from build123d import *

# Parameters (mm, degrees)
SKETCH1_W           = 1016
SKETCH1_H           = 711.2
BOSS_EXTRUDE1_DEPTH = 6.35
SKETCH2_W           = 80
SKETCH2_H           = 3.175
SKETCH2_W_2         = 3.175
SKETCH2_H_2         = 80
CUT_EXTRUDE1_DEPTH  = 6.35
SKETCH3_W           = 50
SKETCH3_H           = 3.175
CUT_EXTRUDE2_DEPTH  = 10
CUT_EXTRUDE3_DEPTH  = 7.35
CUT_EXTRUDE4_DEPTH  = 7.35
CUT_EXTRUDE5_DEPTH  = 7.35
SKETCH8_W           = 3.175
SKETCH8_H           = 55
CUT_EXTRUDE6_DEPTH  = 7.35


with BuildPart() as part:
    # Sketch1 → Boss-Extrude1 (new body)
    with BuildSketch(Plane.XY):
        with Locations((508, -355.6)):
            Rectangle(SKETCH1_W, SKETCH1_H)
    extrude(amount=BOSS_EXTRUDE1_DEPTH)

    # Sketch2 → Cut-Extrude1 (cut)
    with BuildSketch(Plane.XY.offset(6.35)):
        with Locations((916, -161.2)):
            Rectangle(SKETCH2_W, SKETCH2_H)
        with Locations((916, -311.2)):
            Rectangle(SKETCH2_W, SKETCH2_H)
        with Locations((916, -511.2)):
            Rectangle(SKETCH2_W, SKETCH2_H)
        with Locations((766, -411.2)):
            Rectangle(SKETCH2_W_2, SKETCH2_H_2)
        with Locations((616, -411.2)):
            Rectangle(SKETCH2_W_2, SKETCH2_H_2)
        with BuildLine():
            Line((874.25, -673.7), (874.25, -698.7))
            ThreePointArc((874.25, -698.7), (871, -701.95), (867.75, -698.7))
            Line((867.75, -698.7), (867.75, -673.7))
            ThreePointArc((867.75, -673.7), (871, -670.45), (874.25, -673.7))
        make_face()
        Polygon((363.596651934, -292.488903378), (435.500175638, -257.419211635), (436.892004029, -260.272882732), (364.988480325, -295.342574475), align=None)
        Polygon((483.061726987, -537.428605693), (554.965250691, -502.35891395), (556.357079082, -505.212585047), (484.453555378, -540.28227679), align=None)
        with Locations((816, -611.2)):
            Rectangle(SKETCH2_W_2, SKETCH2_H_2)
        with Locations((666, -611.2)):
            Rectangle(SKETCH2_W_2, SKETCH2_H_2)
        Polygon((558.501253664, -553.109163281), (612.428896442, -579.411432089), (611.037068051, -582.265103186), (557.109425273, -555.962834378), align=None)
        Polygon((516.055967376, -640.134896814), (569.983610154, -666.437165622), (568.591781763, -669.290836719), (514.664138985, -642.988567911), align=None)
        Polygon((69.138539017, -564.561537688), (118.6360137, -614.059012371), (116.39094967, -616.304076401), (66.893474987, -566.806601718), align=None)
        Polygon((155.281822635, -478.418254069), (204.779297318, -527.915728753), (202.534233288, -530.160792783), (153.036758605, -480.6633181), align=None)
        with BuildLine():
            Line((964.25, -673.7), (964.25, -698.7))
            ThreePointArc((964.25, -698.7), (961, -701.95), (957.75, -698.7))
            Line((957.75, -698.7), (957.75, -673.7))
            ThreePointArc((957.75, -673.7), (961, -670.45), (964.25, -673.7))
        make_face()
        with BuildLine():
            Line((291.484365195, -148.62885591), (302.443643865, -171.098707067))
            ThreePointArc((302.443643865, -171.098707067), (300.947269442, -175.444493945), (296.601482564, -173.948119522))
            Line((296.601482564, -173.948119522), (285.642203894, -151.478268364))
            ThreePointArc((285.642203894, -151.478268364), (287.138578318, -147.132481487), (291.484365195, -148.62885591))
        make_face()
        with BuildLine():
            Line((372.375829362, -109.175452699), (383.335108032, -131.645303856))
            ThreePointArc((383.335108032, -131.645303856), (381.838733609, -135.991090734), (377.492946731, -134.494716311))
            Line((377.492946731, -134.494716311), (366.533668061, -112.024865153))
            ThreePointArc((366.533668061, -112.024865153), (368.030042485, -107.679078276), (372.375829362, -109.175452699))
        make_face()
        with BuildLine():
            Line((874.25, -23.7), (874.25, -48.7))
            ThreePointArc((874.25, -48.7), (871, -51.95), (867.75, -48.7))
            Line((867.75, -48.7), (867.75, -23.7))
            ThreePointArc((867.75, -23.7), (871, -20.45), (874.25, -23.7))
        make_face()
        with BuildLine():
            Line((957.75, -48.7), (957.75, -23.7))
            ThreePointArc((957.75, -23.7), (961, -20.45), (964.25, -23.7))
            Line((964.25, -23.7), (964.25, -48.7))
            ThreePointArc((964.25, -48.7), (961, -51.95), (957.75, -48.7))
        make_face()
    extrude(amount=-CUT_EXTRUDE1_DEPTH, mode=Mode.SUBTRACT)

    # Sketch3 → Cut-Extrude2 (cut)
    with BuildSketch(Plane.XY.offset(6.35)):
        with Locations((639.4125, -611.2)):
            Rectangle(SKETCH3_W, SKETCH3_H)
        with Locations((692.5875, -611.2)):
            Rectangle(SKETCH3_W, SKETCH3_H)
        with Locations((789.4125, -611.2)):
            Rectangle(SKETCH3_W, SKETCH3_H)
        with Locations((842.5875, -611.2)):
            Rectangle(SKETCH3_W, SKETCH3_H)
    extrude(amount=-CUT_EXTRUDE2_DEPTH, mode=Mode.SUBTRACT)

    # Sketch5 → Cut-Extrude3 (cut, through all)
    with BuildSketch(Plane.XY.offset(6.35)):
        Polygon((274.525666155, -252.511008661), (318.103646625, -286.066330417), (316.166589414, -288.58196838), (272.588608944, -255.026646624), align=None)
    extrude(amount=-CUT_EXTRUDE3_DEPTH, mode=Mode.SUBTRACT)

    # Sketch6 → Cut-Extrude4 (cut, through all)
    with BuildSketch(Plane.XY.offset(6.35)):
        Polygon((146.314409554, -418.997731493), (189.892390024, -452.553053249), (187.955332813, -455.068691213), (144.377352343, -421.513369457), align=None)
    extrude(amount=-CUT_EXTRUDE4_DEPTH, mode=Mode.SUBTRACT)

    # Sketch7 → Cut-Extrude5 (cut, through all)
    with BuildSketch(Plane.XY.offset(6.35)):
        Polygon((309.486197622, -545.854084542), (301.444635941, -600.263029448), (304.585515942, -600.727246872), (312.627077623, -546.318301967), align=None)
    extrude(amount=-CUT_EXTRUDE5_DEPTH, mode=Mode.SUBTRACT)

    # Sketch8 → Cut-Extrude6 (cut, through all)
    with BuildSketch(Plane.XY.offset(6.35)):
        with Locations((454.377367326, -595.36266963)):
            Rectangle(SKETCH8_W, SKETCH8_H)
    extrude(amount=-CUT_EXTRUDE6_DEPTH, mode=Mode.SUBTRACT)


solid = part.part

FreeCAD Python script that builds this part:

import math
import FreeCAD as App
import Part
import Sketcher
Q = App.Units.Quantity

doc = App.newDocument("Part")
body = doc.addObject("PartDesign::Body", "Body")

# Sketch on XY plane
sketch1 = body.newObject("Sketcher::SketchObject", "Sketch")
sketch1.AttachmentSupport = (doc.getObject("XY_Plane"), [""])
sketch1.MapMode = "FlatFace"
sketch1.addGeometry([
    Part.LineSegment(App.Vector(0, 0, 0), App.Vector(0, -711.2, 0)),
    Part.LineSegment(App.Vector(0, -711.2, 0), App.Vector(1016, -711.2, 0)),
    Part.LineSegment(App.Vector(1016, -711.2, 0), App.Vector(1016, 0, 0)),
    Part.LineSegment(App.Vector(1016, 0, 0), App.Vector(0, 0, 0)),
], False)
sketch1.addConstraint([
    Sketcher.Constraint("Coincident", 0, 2, 1, 1),
    Sketcher.Constraint("Coincident", 1, 2, 2, 1),
    Sketcher.Constraint("Coincident", 2, 2, 3, 1),
    Sketcher.Constraint("Coincident", 3, 2, 0, 1),
    Sketcher.Constraint("Vertical", 0),
    Sketcher.Constraint("Horizontal", 1),
    Sketcher.Constraint("Vertical", 2),
    Sketcher.Constraint("Horizontal", 3),
    Sketcher.Constraint("Coincident", 3, 2, -1, 1),
    Sketcher.Constraint("DistanceX", 1, 1, 1, 2, 1016.0),
    Sketcher.Constraint("DistanceY", 0, 2, 0, 1, 711.2),
])
pad1 = body.newObject("PartDesign::Pad", "Pad")
pad1.Profile = sketch1
pad1.Length = 6.35

# Sketch on XY plane
sketch2 = body.newObject("Sketcher::SketchObject", "Sketch001")
sketch2.AttachmentSupport = (doc.getObject("XY_Plane"), [""])
sketch2.MapMode = "FlatFace"
sketch2.AttachmentOffset = App.Placement(App.Vector(0, 0, 6.35), App.Rotation())
sketch2.addGeometry([
    Part.LineSegment(App.Vector(876, -159.6125, 0), App.Vector(876, -162.7875, 0)),  # 0
    Part.LineSegment(App.Vector(876, -162.7875, 0), App.Vector(956, -162.7875, 0)),  # 1
    Part.LineSegment(App.Vector(956, -162.7875, 0), App.Vector(956, -159.6125, 0)),  # 2
    Part.LineSegment(App.Vector(956, -159.6125, 0), App.Vector(876, -159.6125, 0)),  # 3
    Part.LineSegment(App.Vector(876, -309.6125, 0), App.Vector(876, -312.7875, 0)),  # 4
    Part.LineSegment(App.Vector(876, -312.7875, 0), App.Vector(956, -312.7875, 0)),  # 5
    Part.LineSegment(App.Vector(956, -312.7875, 0), App.Vector(956, -309.6125, 0)),  # 6
    Part.LineSegment(App.Vector(956, -309.6125, 0), App.Vector(876, -309.6125, 0)),  # 7
    Part.LineSegment(App.Vector(876, -509.6125, 0), App.Vector(876, -512.7875, 0)),  # 8
    Part.LineSegment(App.Vector(876, -512.7875, 0), App.Vector(956, -512.7875, 0)),  # 9
    Part.LineSegment(App.Vector(956, -512.7875, 0), App.Vector(956, -509.6125, 0)),  # 10
    Part.LineSegment(App.Vector(956, -509.6125, 0), App.Vector(876, -509.6125, 0)),  # 11
    Part.LineSegment(App.Vector(764.4125, -371.2, 0), App.Vector(764.4125, -451.2, 0)),  # 12
    Part.LineSegment(App.Vector(764.4125, -451.2, 0), App.Vector(767.5875, -451.2, 0)),  # 13
    Part.LineSegment(App.Vector(767.5875, -451.2, 0), App.Vector(767.5875, -371.2, 0)),  # 14
    Part.LineSegment(App.Vector(767.5875, -371.2, 0), App.Vector(764.4125, -371.2, 0)),  # 15
    Part.LineSegment(App.Vector(614.4125, -371.2, 0), App.Vector(614.4125, -451.2, 0)),  # 16
    Part.LineSegment(App.Vector(614.4125, -451.2, 0), App.Vector(617.5875, -451.2, 0)),  # 17
    Part.LineSegment(App.Vector(617.5875, -451.2, 0), App.Vector(617.5875, -371.2, 0)),  # 18
    Part.LineSegment(App.Vector(617.5875, -371.2, 0), App.Vector(614.4125, -371.2, 0)),  # 19
    Part.LineSegment(App.Vector(874.25, -698.7, 0), App.Vector(874.25, -673.7, 0)),  # 20
    Part.ArcOfCircle(Part.Circle(App.Vector(871, -673.7, 0), App.Vector(0, 0, 1), 3.25), math.radians(0), math.radians(180)),  # 21
    Part.LineSegment(App.Vector(867.75, -673.7, 0), App.Vector(867.75, -698.7, 0)),  # 22
    Part.ArcOfCircle(Part.Circle(App.Vector(871, -698.7, 0), App.Vector(0, 0, 1), 3.25), math.radians(180), math.radians(360)),  # 23
    Part.LineSegment(App.Vector(435.500176, -257.419212, 0), App.Vector(363.596652, -292.488903, 0)),  # 24
    Part.LineSegment(App.Vector(363.596652, -292.488903, 0), App.Vector(364.98848, -295.342574, 0)),  # 25
    Part.LineSegment(App.Vector(364.98848, -295.342574, 0), App.Vector(436.892004, -260.272883, 0)),  # 26
    Part.LineSegment(App.Vector(436.892004, -260.272883, 0), App.Vector(435.500176, -257.419212, 0)),  # 27
    Part.LineSegment(App.Vector(554.965251, -502.358914, 0), App.Vector(483.061727, -537.428606, 0)),  # 28
    Part.LineSegment(App.Vector(483.061727, -537.428606, 0), App.Vector(484.453555, -540.282277, 0)),  # 29
    Part.LineSegment(App.Vector(484.453555, -540.282277, 0), App.Vector(556.357079, -505.212585, 0)),  # 30
    Part.LineSegment(App.Vector(556.357079, -505.212585, 0), App.Vector(554.965251, -502.358914, 0)),  # 31
    Part.LineSegment(App.Vector(814.4125, -571.2, 0), App.Vector(814.4125, -651.2, 0)),  # 32
    Part.LineSegment(App.Vector(814.4125, -651.2, 0), App.Vector(817.5875, -651.2, 0)),  # 33
    Part.LineSegment(App.Vector(817.5875, -651.2, 0), App.Vector(817.5875, -571.2, 0)),  # 34
    Part.LineSegment(App.Vector(817.5875, -571.2, 0), App.Vector(814.4125, -571.2, 0)),  # 35
    Part.LineSegment(App.Vector(664.4125, -571.2, 0), App.Vector(664.4125, -651.2, 0)),  # 36
    Part.LineSegment(App.Vector(664.4125, -651.2, 0), App.Vector(667.5875, -651.2, 0)),  # 37
    Part.LineSegment(App.Vector(667.5875, -651.2, 0), App.Vector(667.5875, -571.2, 0)),  # 38
    Part.LineSegment(App.Vector(667.5875, -571.2, 0), App.Vector(664.4125, -571.2, 0)),  # 39
    Part.LineSegment(App.Vector(612.428896, -579.411432, 0), App.Vector(558.501254, -553.109163, 0)),  # 40
    Part.LineSegment(App.Vector(558.501254, -553.109163, 0), App.Vector(557.109425, -555.962834, 0)),  # 41
    Part.LineSegment(App.Vector(557.109425, -555.962834, 0), App.Vector(611.037068, -582.265103, 0)),  # 42
    Part.LineSegment(App.Vector(611.037068, -582.265103, 0), App.Vector(612.428896, -579.411432, 0)),  # 43
    Part.LineSegment(App.Vector(569.98361, -666.437166, 0), App.Vector(516.055967, -640.134897, 0)),  # 44
    Part.LineSegment(App.Vector(516.055967, -640.134897, 0), App.Vector(514.664139, -642.988568, 0)),  # 45
    Part.LineSegment(App.Vector(514.664139, -642.988568, 0), App.Vector(568.591782, -669.290837, 0)),  # 46
    Part.LineSegment(App.Vector(568.591782, -669.290837, 0), App.Vector(569.98361, -666.437166, 0)),  # 47
    Part.LineSegment(App.Vector(118.636014, -614.059012, 0), App.Vector(69.138539, -564.561538, 0)),  # 48
    Part.LineSegment(App.Vector(69.138539, -564.561538, 0), App.Vector(66.893475, -566.806602, 0)),  # 49
    Part.LineSegment(App.Vector(66.893475, -566.806602, 0), App.Vector(116.39095, -616.304076, 0)),  # 50
    Part.LineSegment(App.Vector(116.39095, -616.304076, 0), App.Vector(118.636014, -614.059012, 0)),  # 51
    Part.LineSegment(App.Vector(204.779297, -527.915729, 0), App.Vector(155.281823, -478.418254, 0)),  # 52
    Part.LineSegment(App.Vector(155.281823, -478.418254, 0), App.Vector(153.036759, -480.663318, 0)),  # 53
    Part.LineSegment(App.Vector(153.036759, -480.663318, 0), App.Vector(202.534233, -530.160793, 0)),  # 54
    Part.LineSegment(App.Vector(202.534233, -530.160793, 0), App.Vector(204.779297, -527.915729, 0)),  # 55
    Part.LineSegment(App.Vector(964.25, -698.7, 0), App.Vector(964.25, -673.7, 0)),  # 56
    Part.ArcOfCircle(Part.Circle(App.Vector(961, -673.7, 0), App.Vector(0, 0, 1), 3.25), math.radians(0), math.radians(180)),  # 57
    Part.LineSegment(App.Vector(957.75, -673.7, 0), App.Vector(957.75, -698.7, 0)),  # 58
    Part.ArcOfCircle(Part.Circle(App.Vector(961, -698.7, 0), App.Vector(0, 0, 1), 3.25), math.radians(180), math.radians(360)),  # 59
    Part.LineSegment(App.Vector(302.443644, -171.098707, 0), App.Vector(291.484365, -148.628856, 0)),  # 60
    Part.ArcOfCircle(Part.Circle(App.Vector(288.563285, -150.053562, 0), App.Vector(0, 0, 1), 3.25), math.radians(26), math.radians(206)),  # 61
    Part.LineSegment(App.Vector(285.642204, -151.478268, 0), App.Vector(296.601483, -173.94812, 0)),  # 62
    Part.ArcOfCircle(Part.Circle(App.Vector(299.522563, -172.523413, 0), App.Vector(0, 0, 1), 3.25), math.radians(-154), math.radians(26)),  # 63
    Part.LineSegment(App.Vector(383.335108, -131.645304, 0), App.Vector(372.375829, -109.175453, 0)),  # 64
    Part.ArcOfCircle(Part.Circle(App.Vector(369.454749, -110.600159, 0), App.Vector(0, 0, 1), 3.25), math.radians(26), math.radians(206)),  # 65
    Part.LineSegment(App.Vector(366.533668, -112.024865, 0), App.Vector(377.492947, -134.494716, 0)),  # 66
    Part.ArcOfCircle(Part.Circle(App.Vector(380.414027, -133.07001, 0), App.Vector(0, 0, 1), 3.25), math.radians(-154), math.radians(26)),  # 67
    Part.LineSegment(App.Vector(874.25, -48.7, 0), App.Vector(874.25, -23.7, 0)),  # 68
    Part.ArcOfCircle(Part.Circle(App.Vector(871, -23.7, 0), App.Vector(0, 0, 1), 3.25), math.radians(0), math.radians(180)),  # 69
    Part.LineSegment(App.Vector(867.75, -23.7, 0), App.Vector(867.75, -48.7, 0)),  # 70
    Part.ArcOfCircle(Part.Circle(App.Vector(871, -48.7, 0), App.Vector(0, 0, 1), 3.25), math.radians(180), math.radians(360)),  # 71
    Part.LineSegment(App.Vector(957.75, -23.7, 0), App.Vector(957.75, -48.7, 0)),  # 72
    Part.ArcOfCircle(Part.Circle(App.Vector(961, -48.7, 0), App.Vector(0, 0, 1), 3.25), math.radians(180), math.radians(360)),  # 73
    Part.LineSegment(App.Vector(964.25, -48.7, 0), App.Vector(964.25, -23.7, 0)),  # 74
    Part.ArcOfCircle(Part.Circle(App.Vector(961, -23.7, 0), App.Vector(0, 0, 1), 3.25), math.radians(0), math.radians(180)),  # 75
], False)
sketch2.addConstraint([
    Sketcher.Constraint("Coincident", 0, 2, 1, 1),
    Sketcher.Constraint("Coincident", 1, 2, 2, 1),
    Sketcher.Constraint("Coincident", 2, 2, 3, 1),
    Sketcher.Constraint("Coincident", 3, 2, 0, 1),
    Sketcher.Constraint("Coincident", 4, 2, 5, 1),
    Sketcher.Constraint("Coincident", 5, 2, 6, 1),
    Sketcher.Constraint("Coincident", 6, 2, 7, 1),
    Sketcher.Constraint("Coincident", 7, 2, 4, 1),
    Sketcher.Constraint("Coincident", 8, 2, 9, 1),
    Sketcher.Constraint("Coincident", 9, 2, 10, 1),
    Sketcher.Constraint("Coincident", 10, 2, 11, 1),
    Sketcher.Constraint("Coincident", 11, 2, 8, 1),
    Sketcher.Constraint("Coincident", 12, 2, 13, 1),
    Sketcher.Constraint("Coincident", 13, 2, 14, 1),
    Sketcher.Constraint("Coincident", 14, 2, 15, 1),
    Sketcher.Constraint("Coincident", 15, 2, 12, 1),
    Sketcher.Constraint("Coincident", 16, 2, 17, 1),
    Sketcher.Constraint("Coincident", 17, 2, 18, 1),
    Sketcher.Constraint("Coincident", 18, 2, 19, 1),
    Sketcher.Constraint("Coincident", 19, 2, 16, 1),
    Sketcher.Constraint("Tangent", 20, 2, 21, 1),
    Sketcher.Constraint("Tangent", 21, 2, 22, 1),
    Sketcher.Constraint("Tangent", 22, 2, 23, 1),
    Sketcher.Constraint("Tangent", 23, 2, 20, 1),
    Sketcher.Constraint("Coincident", 24, 2, 25, 1),
    Sketcher.Constraint("Coincident", 25, 2, 26, 1),
    Sketcher.Constraint("Coincident", 26, 2, 27, 1),
    Sketcher.Constraint("Coincident", 27, 2, 24, 1),
    Sketcher.Constraint("Coincident", 28, 2, 29, 1),
    Sketcher.Constraint("Coincident", 29, 2, 30, 1),
    Sketcher.Constraint("Coincident", 30, 2, 31, 1),
    Sketcher.Constraint("Coincident", 31, 2, 28, 1),
    Sketcher.Constraint("Coincident", 32, 2, 33, 1),
    Sketcher.Constraint("Coincident", 33, 2, 34, 1),
    Sketcher.Constraint("Coincident", 34, 2, 35, 1),
    Sketcher.Constraint("Coincident", 35, 2, 32, 1),
    Sketcher.Constraint("Coincident", 36, 2, 37, 1),
    Sketcher.Constraint("Coincident", 37, 2, 38, 1),
    Sketcher.Constraint("Coincident", 38, 2, 39, 1),
    Sketcher.Constraint("Coincident", 39, 2, 36, 1),
    Sketcher.Constraint("Coincident", 40, 2, 41, 1),
    Sketcher.Constraint("Coincident", 41, 2, 42, 1),
    Sketcher.Constraint("Coincident", 42, 2, 43, 1),
    Sketcher.Constraint("Coincident", 43, 2, 40, 1),
    Sketcher.Constraint("Coincident", 44, 2, 45, 1),
    Sketcher.Constraint("Coincident", 45, 2, 46, 1),
    Sketcher.Constraint("Coincident", 46, 2, 47, 1),
    Sketcher.Constraint("Coincident", 47, 2, 44, 1),
    Sketcher.Constraint("Coincident", 48, 2, 49, 1),
    Sketcher.Constraint("Coincident", 49, 2, 50, 1),
    Sketcher.Constraint("Coincident", 50, 2, 51, 1),
    Sketcher.Constraint("Coincident", 51, 2, 48, 1),
    Sketcher.Constraint("Coincident", 52, 2, 53, 1),
    Sketcher.Constraint("Coincident", 53, 2, 54, 1),
    Sketcher.Constraint("Coincident", 54, 2, 55, 1),
    Sketcher.Constraint("Coincident", 55, 2, 52, 1),
    Sketcher.Constraint("Tangent", 56, 2, 57, 1),
    Sketcher.Constraint("Tangent", 57, 2, 58, 1),
    Sketcher.Constraint("Tangent", 58, 2, 59, 1),
    Sketcher.Constraint("Tangent", 59, 2, 56, 1),
    Sketcher.Constraint("Tangent", 60, 2, 61, 1),
    Sketcher.Constraint("Tangent", 61, 2, 62, 1),
    Sketcher.Constraint("Tangent", 62, 2, 63, 1),
    Sketcher.Constraint("Tangent", 63, 2, 60, 1),
    Sketcher.Constraint("Tangent", 64, 2, 65, 1),
    Sketcher.Constraint("Tangent", 65, 2, 66, 1),
    Sketcher.Constraint("Tangent", 66, 2, 67, 1),
    Sketcher.Constraint("Tangent", 67, 2, 64, 1),
    Sketcher.Constraint("Tangent", 68, 2, 69, 1),
    Sketcher.Constraint("Tangent", 69, 2, 70, 1),
    Sketcher.Constraint("Tangent", 70, 2, 71, 1),
    Sketcher.Constraint("Tangent", 71, 2, 68, 1),
    Sketcher.Constraint("Tangent", 72, 2, 73, 1),
    Sketcher.Constraint("Tangent", 73, 2, 74, 1),
    Sketcher.Constraint("Tangent", 74, 2, 75, 1),
    Sketcher.Constraint("Tangent", 75, 2, 72, 1),
    Sketcher.Constraint("Vertical", 0),
    Sketcher.Constraint("Horizontal", 1),
    Sketcher.Constraint("Vertical", 2),
    Sketcher.Constraint("Horizontal", 3),
    Sketcher.Constraint("Vertical", 4),
    Sketcher.Constraint("Horizontal", 5),
    Sketcher.Constraint("Vertical", 6),
    Sketcher.Constraint("Horizontal", 7),
    Sketcher.Constraint("Vertical", 8),
    Sketcher.Constraint("Horizontal", 9),
    Sketcher.Constraint("Vertical", 10),
    Sketcher.Constraint("Horizontal", 11),
    Sketcher.Constraint("Vertical", 12),
    Sketcher.Constraint("Horizontal", 13),
    Sketcher.Constraint("Vertical", 14),
    Sketcher.Constraint("Horizontal", 15),
    Sketcher.Constraint("Vertical", 16),
    Sketcher.Constraint("Horizontal", 17),
    Sketcher.Constraint("Vertical", 18),
    Sketcher.Constraint("Horizontal", 19),
    Sketcher.Constraint("Vertical", 20),
    Sketcher.Constraint("Vertical", 22),
    Sketcher.Constraint("Vertical", 32),
    Sketcher.Constraint("Horizontal", 33),
    Sketcher.Constraint("Vertical", 34),
    Sketcher.Constraint("Horizontal", 35),
    Sketcher.Constraint("Vertical", 36),
    Sketcher.Constraint("Horizontal", 37),
    Sketcher.Constraint("Vertical", 38),
    Sketcher.Constraint("Horizontal", 39),
    Sketcher.Constraint("Vertical", 56),
    Sketcher.Constraint("Vertical", 58),
    Sketcher.Constraint("Vertical", 68),
    Sketcher.Constraint("Vertical", 70),
    Sketcher.Constraint("Vertical", 72),
    Sketcher.Constraint("Vertical", 74),
    Sketcher.Constraint("Equal", 23, 57),
    Sketcher.Constraint("Equal", 59, 61),
    Sketcher.Constraint("Equal", 61, 63),
    Sketcher.Constraint("Equal", 63, 65),
    Sketcher.Constraint("Equal", 65, 67),
    Sketcher.Constraint("Equal", 67, 69),
    Sketcher.Constraint("Equal", 71, 73),
    Sketcher.Constraint("Perpendicular", 24, 25),
    Sketcher.Constraint("Perpendicular", 25, 26),
    Sketcher.Constraint("Perpendicular", 26, 27),
    Sketcher.Constraint("Perpendicular", 27, 28),
    Sketcher.Constraint("Perpendicular", 28, 29),
    Sketcher.Constraint("Perpendicular", 29, 30),
    Sketcher.Constraint("Perpendicular", 30, 31),
    Sketcher.Constraint("Perpendicular", 40, 41),
    Sketcher.Constraint("Perpendicular", 41, 42),
    Sketcher.Constraint("Perpendicular", 42, 43),
    Sketcher.Constraint("Perpendicular", 43, 44),
    Sketcher.Constraint("Perpendicular", 44, 45),
    Sketcher.Constraint("Perpendicular", 45, 46),
    Sketcher.Constraint("Perpendicular", 46, 47),
    Sketcher.Constraint("Perpendicular", 48, 49),
    Sketcher.Constraint("Perpendicular", 49, 50),
    Sketcher.Constraint("Perpendicular", 50, 51),
    Sketcher.Constraint("Perpendicular", 51, 52),
    Sketcher.Constraint("Perpendicular", 52, 53),
    Sketcher.Constraint("Perpendicular", 53, 54),
    Sketcher.Constraint("Perpendicular", 54, 55),
    Sketcher.Constraint("Parallel", 31, 60),
    Sketcher.Constraint("Parallel", 62, 64),
    Sketcher.Constraint("Horizontal", 21, 3, 57, 3),
    Sketcher.Constraint("Horizontal", 23, 3, 59, 3),
    Sketcher.Constraint("Horizontal", 71, 3, 73, 3),
    Sketcher.Constraint("Horizontal", 69, 3, 75, 3),
    Sketcher.Constraint("Horizontal", 13, 2, 16, 2),
    Sketcher.Constraint("Horizontal", 15, 2, 18, 2),
    Sketcher.Constraint("Horizontal", 33, 2, 36, 2),
    Sketcher.Constraint("Horizontal", 35, 2, 38, 2),
    Sketcher.Constraint("Vertical", 23, 3, 69, 3),
    Sketcher.Constraint("Vertical", 59, 3, 73, 3),
    Sketcher.Constraint("Vertical", 3, 2, 4, 2),
    Sketcher.Constraint("Vertical", 2, 2, 5, 2),
    Sketcher.Constraint("Vertical", 7, 2, 8, 2),
    Sketcher.Constraint("Vertical", 6, 2, 9, 2),
    Sketcher.Constraint("Equal", 15, 17),
    Sketcher.Constraint("Equal", 19, 33),
    Sketcher.Constraint("Equal", 35, 37),
    Sketcher.Constraint("Equal", 39, 0),
    Sketcher.Constraint("Equal", 2, 4),
    Sketcher.Constraint("Equal", 6, 8),
    Sketcher.Constraint("Equal", 11, 12),
    Sketcher.Constraint("Equal", 18, 32),
    Sketcher.Constraint("Equal", 58, 68),
    Sketcher.Constraint("Equal", 26, 28),
    Sketcher.Constraint("Equal", 27, 29),
    Sketcher.Constraint("Equal", 31, 41),
    Sketcher.Constraint("Equal", 42, 44),
    Sketcher.Constraint("Equal", 43, 45),
    Sketcher.Constraint("Equal", 47, 49),
    Sketcher.Constraint("Equal", 50, 52),
    Sketcher.Constraint("Equal", 51, 53),
    Sketcher.Constraint("Equal", 62, 64),
    Sketcher.Constraint("DistanceX", 1, 1, 1, 2, 80.0),
    Sketcher.Constraint("DistanceY", 20, 1, 20, 2, 25.0),
    Sketcher.Constraint("Angle", 24, Q("-154 deg")),
    Sketcher.Constraint("Angle", 40, Q("154 deg")),
    Sketcher.Constraint("Angle", 48, Q("135 deg")),
    Sketcher.Constraint("Radius", 21, 3.25),
    Sketcher.Constraint("Distance", 24, 80.0),
    Sketcher.Constraint("Distance", 40, 60.0),
    Sketcher.Constraint("Distance", 48, 70.0),
    Sketcher.Constraint("Distance", 60, 25.0),
    Sketcher.Constraint("DistanceX", -1, 1, 21, 3, 871.0),
    Sketcher.Constraint("DistanceX", -1, 1, 57, 3, 961.0),
    Sketcher.Constraint("DistanceX", -1, 1, 0, 2, 876.0),
    Sketcher.Constraint("DistanceY", 21, 3, -1, 1, 673.7),
    Sketcher.Constraint("DistanceY", 69, 3, -1, 1, 23.7),
    Sketcher.Constraint("DistanceY", 12, 2, -1, 1, 451.2),
    Sketcher.Constraint("DistanceY", 32, 2, -1, 1, 651.2),
    Sketcher.Constraint("DistanceX", 13, 1, 13, 2, 3.175),
    Sketcher.Constraint("Distance", 25, 3.175),
    Sketcher.Constraint("DistanceY", 0, 2, -1, 1, 162.7875),
    Sketcher.Constraint("DistanceY", 4, 2, -1, 1, 312.7875),
    Sketcher.Constraint("DistanceY", 8, 2, -1, 1, 512.7875),
    Sketcher.Constraint("DistanceX", -1, 1, 12, 2, 764.4125),
    Sketcher.Constraint("DistanceX", -1, 1, 16, 2, 614.4125),
    Sketcher.Constraint("DistanceX", -1, 1, 32, 2, 814.4125),
    Sketcher.Constraint("DistanceX", -1, 1, 36, 2, 664.4125),
    Sketcher.Constraint("DistanceY", 49, 2, -1, 1, 566.806602),
    Sketcher.Constraint("DistanceX", -1, 1, 65, 3, 369.454749),
    Sketcher.Constraint("DistanceY", 65, 3, -1, 1, 110.600159),
    Sketcher.Constraint("DistanceX", -1, 1, 24, 2, 363.596652),
    Sketcher.Constraint("DistanceY", 27, 2, -1, 1, 257.419212),
    Sketcher.Constraint("DistanceX", -1, 1, 30, 2, 556.357079),
    Sketcher.Constraint("DistanceX", -1, 1, 42, 2, 611.037068),
    Sketcher.Constraint("DistanceX", -1, 1, 45, 2, 514.664139),
    Sketcher.Constraint("DistanceX", -1, 1, 48, 2, 69.138539),
    Sketcher.Constraint("DistanceX", -1, 1, 53, 2, 153.036759),
    Sketcher.Constraint("DistanceY", 53, 2, -1, 1, 480.663318),
    Sketcher.Constraint("DistanceY", 61, 2, -1, 1, 151.478268),
    Sketcher.Constraint("DistanceX", -1, 1, 61, 3, 288.563285),
    Sketcher.Constraint("DistanceY", 28, 2, -1, 1, 537.428606),
    Sketcher.Constraint("DistanceY", 40, 2, -1, 1, 553.109163),
    Sketcher.Constraint("DistanceY", 44, 2, -1, 1, 640.134897),
])
pocket1 = body.newObject("PartDesign::Pocket", "Pocket")
pocket1.Profile = sketch2
pocket1.Length = 6.35

# Sketch on XY plane
sketch3 = body.newObject("Sketcher::SketchObject", "Sketch002")
sketch3.AttachmentSupport = (doc.getObject("XY_Plane"), [""])
sketch3.MapMode = "FlatFace"
sketch3.AttachmentOffset = App.Placement(App.Vector(0, 0, 6.35), App.Rotation())
sketch3.addGeometry([
    Part.LineSegment(App.Vector(614.4125, -609.6125, 0), App.Vector(614.4125, -612.7875, 0)),  # 0
    Part.LineSegment(App.Vector(614.4125, -612.7875, 0), App.Vector(664.4125, -612.7875, 0)),  # 1
    Part.LineSegment(App.Vector(664.4125, -612.7875, 0), App.Vector(664.4125, -609.6125, 0)),  # 2
    Part.LineSegment(App.Vector(664.4125, -609.6125, 0), App.Vector(614.4125, -609.6125, 0)),  # 3
    Part.LineSegment(App.Vector(667.5875, -609.6125, 0), App.Vector(667.5875, -612.7875, 0)),  # 4
    Part.LineSegment(App.Vector(667.5875, -612.7875, 0), App.Vector(717.5875, -612.7875, 0)),  # 5
    Part.LineSegment(App.Vector(717.5875, -612.7875, 0), App.Vector(717.5875, -609.6125, 0)),  # 6
    Part.LineSegment(App.Vector(717.5875, -609.6125, 0), App.Vector(667.5875, -609.6125, 0)),  # 7
    Part.LineSegment(App.Vector(764.4125, -609.6125, 0), App.Vector(764.4125, -612.7875, 0)),  # 8
    Part.LineSegment(App.Vector(764.4125, -612.7875, 0), App.Vector(814.4125, -612.7875, 0)),  # 9
    Part.LineSegment(App.Vector(814.4125, -612.7875, 0), App.Vector(814.4125, -609.6125, 0)),  # 10
    Part.LineSegment(App.Vector(814.4125, -609.6125, 0), App.Vector(764.4125, -609.6125, 0)),  # 11
    Part.LineSegment(App.Vector(817.5875, -609.6125, 0), App.Vector(817.5875, -612.7875, 0)),  # 12
    Part.LineSegment(App.Vector(817.5875, -612.7875, 0), App.Vector(867.5875, -612.7875, 0)),  # 13
    Part.LineSegment(App.Vector(867.5875, -612.7875, 0), App.Vector(867.5875, -609.6125, 0)),  # 14
    Part.LineSegment(App.Vector(867.5875, -609.6125, 0), App.Vector(817.5875, -609.6125, 0)),  # 15
], False)
sketch3.addConstraint([
    Sketcher.Constraint("Coincident", 0, 2, 1, 1),
    Sketcher.Constraint("Coincident", 1, 2, 2, 1),
    Sketcher.Constraint("Coincident", 2, 2, 3, 1),
    Sketcher.Constraint("Coincident", 3, 2, 0, 1),
    Sketcher.Constraint("Coincident", 4, 2, 5, 1),
    Sketcher.Constraint("Coincident", 5, 2, 6, 1),
    Sketcher.Constraint("Coincident", 6, 2, 7, 1),
    Sketcher.Constraint("Coincident", 7, 2, 4, 1),
    Sketcher.Constraint("Coincident", 8, 2, 9, 1),
    Sketcher.Constraint("Coincident", 9, 2, 10, 1),
    Sketcher.Constraint("Coincident", 10, 2, 11, 1),
    Sketcher.Constraint("Coincident", 11, 2, 8, 1),
    Sketcher.Constraint("Coincident", 12, 2, 13, 1),
    Sketcher.Constraint("Coincident", 13, 2, 14, 1),
    Sketcher.Constraint("Coincident", 14, 2, 15, 1),
    Sketcher.Constraint("Coincident", 15, 2, 12, 1),
    Sketcher.Constraint("Vertical", 0),
    Sketcher.Constraint("Horizontal", 1),
    Sketcher.Constraint("Vertical", 2),
    Sketcher.Constraint("Horizontal", 3),
    Sketcher.Constraint("Vertical", 4),
    Sketcher.Constraint("Horizontal", 5),
    Sketcher.Constraint("Vertical", 6),
    Sketcher.Constraint("Horizontal", 7),
    Sketcher.Constraint("Vertical", 8),
    Sketcher.Constraint("Horizontal", 9),
    Sketcher.Constraint("Vertical", 10),
    Sketcher.Constraint("Horizontal", 11),
    Sketcher.Constraint("Vertical", 12),
    Sketcher.Constraint("Horizontal", 13),
    Sketcher.Constraint("Vertical", 14),
    Sketcher.Constraint("Horizontal", 15),
    Sketcher.Constraint("Horizontal", 1, 2, 4, 2),
    Sketcher.Constraint("Horizontal", 3, 2, 6, 2),
    Sketcher.Constraint("Horizontal", 5, 2, 8, 2),
    Sketcher.Constraint("Horizontal", 7, 2, 10, 2),
    Sketcher.Constraint("Horizontal", 9, 2, 12, 2),
    Sketcher.Constraint("Horizontal", 11, 2, 14, 2),
    Sketcher.Constraint("Equal", 3, 5),
    Sketcher.Constraint("Equal", 7, 9),
    Sketcher.Constraint("Equal", 11, 13),
    Sketcher.Constraint("DistanceX", 1, 1, 1, 2, 50.0),
    Sketcher.Constraint("DistanceX", 1, 2, 8, 2, 100.0),
    Sketcher.Constraint("DistanceX", 5, 2, 12, 2, 100.0),
    Sketcher.Constraint("DistanceY", 0, 2, 0, 1, 3.175),
    Sketcher.Constraint("DistanceX", 1, 2, 4, 2, 3.175),
    Sketcher.Constraint("DistanceX", -1, 1, 0, 2, 614.4125),
    Sketcher.Constraint("DistanceY", 0, 2, -1, 1, 612.7875),
])
pocket2 = body.newObject("PartDesign::Pocket", "Pocket001")
pocket2.Profile = sketch3
pocket2.Length = 10

# Sketch on XY plane
sketch4 = body.newObject("Sketcher::SketchObject", "Sketch003")
sketch4.AttachmentSupport = (doc.getObject("XY_Plane"), [""])
sketch4.MapMode = "FlatFace"
sketch4.AttachmentOffset = App.Placement(App.Vector(0, 0, 6.35), App.Rotation())
sketch4.addGeometry([
    Part.LineSegment(App.Vector(318.103647, -286.06633, 0), App.Vector(274.525666, -252.511009, 0)),
    Part.LineSegment(App.Vector(274.525666, -252.511009, 0), App.Vector(272.588609, -255.026647, 0)),
    Part.LineSegment(App.Vector(272.588609, -255.026647, 0), App.Vector(316.166589, -288.581968, 0)),
    Part.LineSegment(App.Vector(316.166589, -288.581968, 0), App.Vector(318.103647, -286.06633, 0)),
], False)
sketch4.addConstraint([
    Sketcher.Constraint("Coincident", 0, 2, 1, 1),
    Sketcher.Constraint("Coincident", 1, 2, 2, 1),
    Sketcher.Constraint("Coincident", 2, 2, 3, 1),
    Sketcher.Constraint("Coincident", 3, 2, 0, 1),
    Sketcher.Constraint("Perpendicular", 0, 1),
    Sketcher.Constraint("Perpendicular", 1, 2),
    Sketcher.Constraint("Perpendicular", 2, 3),
    Sketcher.Constraint("Distance", 0, 55.0),
    Sketcher.Constraint("Distance", 1, 3.175),
    Sketcher.Constraint("DistanceY", 0, 2, -1, 1, 252.511009),
    Sketcher.Constraint("DistanceX", -1, 1, 1, 2, 272.588609),
    Sketcher.Constraint("DistanceX", -1, 1, 2, 2, 316.166589),
])
pocket3 = body.newObject("PartDesign::Pocket", "Pocket002")
pocket3.Profile = sketch4
pocket3.Type = "ThroughAll"

# Sketch on XY plane
sketch5 = body.newObject("Sketcher::SketchObject", "Sketch004")
sketch5.AttachmentSupport = (doc.getObject("XY_Plane"), [""])
sketch5.MapMode = "FlatFace"
sketch5.AttachmentOffset = App.Placement(App.Vector(0, 0, 6.35), App.Rotation())
sketch5.addGeometry([
    Part.LineSegment(App.Vector(189.89239, -452.553053, 0), App.Vector(146.31441, -418.997731, 0)),
    Part.LineSegment(App.Vector(146.31441, -418.997731, 0), App.Vector(144.377352, -421.513369, 0)),
    Part.LineSegment(App.Vector(144.377352, -421.513369, 0), App.Vector(187.955333, -455.068691, 0)),
    Part.LineSegment(App.Vector(187.955333, -455.068691, 0), App.Vector(189.89239, -452.553053, 0)),
], False)
sketch5.addConstraint([
    Sketcher.Constraint("Coincident", 0, 2, 1, 1),
    Sketcher.Constraint("Coincident", 1, 2, 2, 1),
    Sketcher.Constraint("Coincident", 2, 2, 3, 1),
    Sketcher.Constraint("Coincident", 3, 2, 0, 1),
    Sketcher.Constraint("Perpendicular", 0, 1),
    Sketcher.Constraint("Perpendicular", 1, 2),
    Sketcher.Constraint("Perpendicular", 2, 3),
    Sketcher.Constraint("Distance", 0, 55.0),
    Sketcher.Constraint("Distance", 1, 3.175),
    Sketcher.Constraint("DistanceX", -1, 1, 0, 2, 146.31441),
    Sketcher.Constraint("DistanceY", 0, 2, -1, 1, 418.997731),
    Sketcher.Constraint("DistanceY", 1, 2, -1, 1, 421.513369),
])
pocket4 = body.newObject("PartDesign::Pocket", "Pocket003")
pocket4.Profile = sketch5
pocket4.Type = "ThroughAll"

# Sketch on XY plane
sketch6 = body.newObject("Sketcher::SketchObject", "Sketch005")
sketch6.AttachmentSupport = (doc.getObject("XY_Plane"), [""])
sketch6.MapMode = "FlatFace"
sketch6.AttachmentOffset = App.Placement(App.Vector(0, 0, 6.35), App.Rotation())
sketch6.addGeometry([
    Part.LineSegment(App.Vector(309.486198, -545.854085, 0), App.Vector(301.444636, -600.263029, 0)),
    Part.LineSegment(App.Vector(301.444636, -600.263029, 0), App.Vector(304.585516, -600.727247, 0)),
    Part.LineSegment(App.Vector(304.585516, -600.727247, 0), App.Vector(312.627078, -546.318302, 0)),
    Part.LineSegment(App.Vector(312.627078, -546.318302, 0), App.Vector(309.486198, -545.854085, 0)),
], False)
sketch6.addConstraint([
    Sketcher.Constraint("Coincident", 0, 2, 1, 1),
    Sketcher.Constraint("Coincident", 1, 2, 2, 1),
    Sketcher.Constraint("Coincident", 2, 2, 3, 1),
    Sketcher.Constraint("Coincident", 3, 2, 0, 1),
    Sketcher.Constraint("Perpendicular", 0, 1),
    Sketcher.Constraint("Perpendicular", 1, 2),
    Sketcher.Constraint("Perpendicular", 2, 3),
    Sketcher.Constraint("Distance", 0, 55.0),
    Sketcher.Constraint("Distance", 1, 3.175),
    Sketcher.Constraint("DistanceY", 2, 2, -1, 1, 546.318302),
    Sketcher.Constraint("DistanceY", 0, 2, -1, 1, 600.263029),
    Sketcher.Constraint("DistanceX", -1, 1, 0, 2, 301.444636),
])
pocket5 = body.newObject("PartDesign::Pocket", "Pocket004")
pocket5.Profile = sketch6
pocket5.Type = "ThroughAll"

# Sketch on XY plane
sketch7 = body.newObject("Sketcher::SketchObject", "Sketch006")
sketch7.AttachmentSupport = (doc.getObject("XY_Plane"), [""])
sketch7.MapMode = "FlatFace"
sketch7.AttachmentOffset = App.Placement(App.Vector(0, 0, 6.35), App.Rotation())
sketch7.addGeometry([
    Part.LineSegment(App.Vector(452.789867, -567.86267, 0), App.Vector(452.789867, -622.86267, 0)),
    Part.LineSegment(App.Vector(452.789867, -622.86267, 0), App.Vector(455.964867, -622.86267, 0)),
    Part.LineSegment(App.Vector(455.964867, -622.86267, 0), App.Vector(455.964867, -567.86267, 0)),
    Part.LineSegment(App.Vector(455.964867, -567.86267, 0), App.Vector(452.789867, -567.86267, 0)),
], False)
sketch7.addConstraint([
    Sketcher.Constraint("Coincident", 0, 2, 1, 1),
    Sketcher.Constraint("Coincident", 1, 2, 2, 1),
    Sketcher.Constraint("Coincident", 2, 2, 3, 1),
    Sketcher.Constraint("Coincident", 3, 2, 0, 1),
    Sketcher.Constraint("Vertical", 0),
    Sketcher.Constraint("Horizontal", 1),
    Sketcher.Constraint("Vertical", 2),
    Sketcher.Constraint("Horizontal", 3),
    Sketcher.Constraint("DistanceY", 0, 2, 0, 1, 55.0),
    Sketcher.Constraint("DistanceX", 1, 1, 1, 2, 3.175),
    Sketcher.Constraint("DistanceY", 0, 2, -1, 1, 622.86267),
    Sketcher.Constraint("DistanceX", -1, 1, 0, 2, 452.789867),
])
pocket6 = body.newObject("PartDesign::Pocket", "Pocket005")
pocket6.Profile = sketch7
pocket6.Type = "ThroughAll"

doc.recompute()
